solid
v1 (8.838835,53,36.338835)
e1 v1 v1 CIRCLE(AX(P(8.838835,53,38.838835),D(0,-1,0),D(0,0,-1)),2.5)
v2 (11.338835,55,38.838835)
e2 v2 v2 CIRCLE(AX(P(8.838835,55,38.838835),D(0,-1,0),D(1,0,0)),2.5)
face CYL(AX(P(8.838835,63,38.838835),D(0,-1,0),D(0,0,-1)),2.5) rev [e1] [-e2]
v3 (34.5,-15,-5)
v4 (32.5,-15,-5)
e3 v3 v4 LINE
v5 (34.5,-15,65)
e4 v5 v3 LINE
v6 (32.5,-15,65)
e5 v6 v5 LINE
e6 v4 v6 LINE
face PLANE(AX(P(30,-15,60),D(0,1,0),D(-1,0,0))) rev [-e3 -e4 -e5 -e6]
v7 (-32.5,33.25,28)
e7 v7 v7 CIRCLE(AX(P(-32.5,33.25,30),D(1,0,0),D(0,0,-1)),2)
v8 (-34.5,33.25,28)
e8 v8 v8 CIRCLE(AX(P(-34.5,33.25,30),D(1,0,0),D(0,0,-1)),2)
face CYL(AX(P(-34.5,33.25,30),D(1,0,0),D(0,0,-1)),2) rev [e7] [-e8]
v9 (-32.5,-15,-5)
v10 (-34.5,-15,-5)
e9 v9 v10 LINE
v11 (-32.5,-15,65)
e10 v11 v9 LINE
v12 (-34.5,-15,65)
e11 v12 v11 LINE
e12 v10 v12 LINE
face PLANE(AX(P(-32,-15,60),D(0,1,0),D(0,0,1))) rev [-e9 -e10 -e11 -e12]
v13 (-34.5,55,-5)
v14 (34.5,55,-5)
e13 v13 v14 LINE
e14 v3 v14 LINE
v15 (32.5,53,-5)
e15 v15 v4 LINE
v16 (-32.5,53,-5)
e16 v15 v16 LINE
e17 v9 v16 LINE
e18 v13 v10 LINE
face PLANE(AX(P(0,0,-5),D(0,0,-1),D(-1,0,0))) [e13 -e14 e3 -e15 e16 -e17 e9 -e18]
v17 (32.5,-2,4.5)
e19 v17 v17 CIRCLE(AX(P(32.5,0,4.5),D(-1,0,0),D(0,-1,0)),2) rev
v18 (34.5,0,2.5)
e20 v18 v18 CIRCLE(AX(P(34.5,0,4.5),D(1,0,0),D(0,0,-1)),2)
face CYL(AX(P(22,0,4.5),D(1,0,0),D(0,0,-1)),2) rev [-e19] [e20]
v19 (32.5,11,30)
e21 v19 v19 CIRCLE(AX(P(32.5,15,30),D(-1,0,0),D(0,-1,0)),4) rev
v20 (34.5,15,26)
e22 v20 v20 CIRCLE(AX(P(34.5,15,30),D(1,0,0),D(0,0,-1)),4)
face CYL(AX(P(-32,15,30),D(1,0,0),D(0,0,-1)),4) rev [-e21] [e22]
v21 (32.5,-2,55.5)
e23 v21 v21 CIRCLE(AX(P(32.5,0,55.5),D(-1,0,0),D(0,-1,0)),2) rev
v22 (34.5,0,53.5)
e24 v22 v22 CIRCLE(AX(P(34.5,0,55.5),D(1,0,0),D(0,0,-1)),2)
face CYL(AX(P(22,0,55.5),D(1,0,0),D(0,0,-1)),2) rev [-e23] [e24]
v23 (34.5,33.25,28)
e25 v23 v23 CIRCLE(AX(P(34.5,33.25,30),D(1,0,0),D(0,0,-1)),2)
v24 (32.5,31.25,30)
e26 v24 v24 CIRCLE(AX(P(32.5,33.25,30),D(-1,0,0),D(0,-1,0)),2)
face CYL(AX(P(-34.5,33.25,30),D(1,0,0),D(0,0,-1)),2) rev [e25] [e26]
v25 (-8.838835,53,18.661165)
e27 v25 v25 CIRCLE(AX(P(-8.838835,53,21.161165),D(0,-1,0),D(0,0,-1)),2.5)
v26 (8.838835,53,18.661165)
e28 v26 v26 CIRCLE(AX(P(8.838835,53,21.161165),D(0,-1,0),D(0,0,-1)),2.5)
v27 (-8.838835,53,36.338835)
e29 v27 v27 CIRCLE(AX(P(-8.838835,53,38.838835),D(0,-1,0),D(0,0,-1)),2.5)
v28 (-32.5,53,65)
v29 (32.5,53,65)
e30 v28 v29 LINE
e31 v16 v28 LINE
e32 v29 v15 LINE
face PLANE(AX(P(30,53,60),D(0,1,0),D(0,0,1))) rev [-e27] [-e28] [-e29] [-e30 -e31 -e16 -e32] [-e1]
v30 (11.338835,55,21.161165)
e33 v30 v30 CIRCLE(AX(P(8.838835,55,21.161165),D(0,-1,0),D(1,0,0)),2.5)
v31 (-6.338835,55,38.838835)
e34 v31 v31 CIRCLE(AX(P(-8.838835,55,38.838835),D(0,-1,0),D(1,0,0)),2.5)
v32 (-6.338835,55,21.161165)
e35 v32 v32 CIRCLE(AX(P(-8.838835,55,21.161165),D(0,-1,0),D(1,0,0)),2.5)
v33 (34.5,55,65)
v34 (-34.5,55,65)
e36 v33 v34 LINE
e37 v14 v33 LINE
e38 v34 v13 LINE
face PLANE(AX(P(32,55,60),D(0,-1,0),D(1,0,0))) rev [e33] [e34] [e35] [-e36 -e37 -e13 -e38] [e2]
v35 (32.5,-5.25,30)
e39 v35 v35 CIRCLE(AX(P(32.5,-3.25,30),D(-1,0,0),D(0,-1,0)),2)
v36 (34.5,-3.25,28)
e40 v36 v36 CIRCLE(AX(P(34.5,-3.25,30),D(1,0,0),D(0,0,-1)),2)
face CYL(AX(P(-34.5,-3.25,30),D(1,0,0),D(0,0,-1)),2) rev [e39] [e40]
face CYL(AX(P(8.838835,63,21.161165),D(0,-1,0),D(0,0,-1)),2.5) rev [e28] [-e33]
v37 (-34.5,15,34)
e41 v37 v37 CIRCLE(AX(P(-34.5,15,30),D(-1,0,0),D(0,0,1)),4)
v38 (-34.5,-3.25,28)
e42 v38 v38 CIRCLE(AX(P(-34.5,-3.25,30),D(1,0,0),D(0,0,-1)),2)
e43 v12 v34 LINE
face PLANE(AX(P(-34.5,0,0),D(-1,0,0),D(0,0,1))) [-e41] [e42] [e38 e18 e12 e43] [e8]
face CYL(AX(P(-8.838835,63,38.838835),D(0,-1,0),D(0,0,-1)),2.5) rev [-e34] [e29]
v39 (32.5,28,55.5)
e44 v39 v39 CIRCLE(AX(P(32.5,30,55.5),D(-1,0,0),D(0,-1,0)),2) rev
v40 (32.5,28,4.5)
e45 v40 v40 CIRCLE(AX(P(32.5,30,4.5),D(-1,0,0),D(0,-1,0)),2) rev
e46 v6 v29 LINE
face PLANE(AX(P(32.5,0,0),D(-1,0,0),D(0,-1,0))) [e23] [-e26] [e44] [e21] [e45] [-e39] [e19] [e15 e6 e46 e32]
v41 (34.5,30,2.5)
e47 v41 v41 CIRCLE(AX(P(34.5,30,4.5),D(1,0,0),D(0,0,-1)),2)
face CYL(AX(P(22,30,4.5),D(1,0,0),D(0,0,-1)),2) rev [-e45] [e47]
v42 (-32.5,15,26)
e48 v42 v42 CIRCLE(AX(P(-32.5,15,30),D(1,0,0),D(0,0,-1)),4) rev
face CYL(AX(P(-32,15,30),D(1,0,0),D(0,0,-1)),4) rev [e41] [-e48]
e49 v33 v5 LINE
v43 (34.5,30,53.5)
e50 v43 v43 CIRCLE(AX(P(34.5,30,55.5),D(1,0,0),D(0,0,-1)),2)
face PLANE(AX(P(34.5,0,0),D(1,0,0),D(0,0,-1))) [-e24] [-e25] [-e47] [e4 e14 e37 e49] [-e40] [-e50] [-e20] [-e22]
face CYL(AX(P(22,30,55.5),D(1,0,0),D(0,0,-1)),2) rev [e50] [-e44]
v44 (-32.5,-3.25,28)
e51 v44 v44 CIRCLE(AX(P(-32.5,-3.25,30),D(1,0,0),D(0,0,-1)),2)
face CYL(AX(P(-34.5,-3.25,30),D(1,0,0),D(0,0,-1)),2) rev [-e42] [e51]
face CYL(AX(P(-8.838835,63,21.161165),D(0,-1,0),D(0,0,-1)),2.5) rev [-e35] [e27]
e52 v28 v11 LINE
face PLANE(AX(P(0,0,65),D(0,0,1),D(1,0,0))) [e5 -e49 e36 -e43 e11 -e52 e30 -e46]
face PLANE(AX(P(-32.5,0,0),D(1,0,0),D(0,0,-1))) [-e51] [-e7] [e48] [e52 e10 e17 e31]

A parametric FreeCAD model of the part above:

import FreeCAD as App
import Part
import Sketcher

V = App.Vector
Q = App.Units.Quantity


def add_polygon(sketch, points):
    """Adds a closed chain of lines whose ends are joined by coincident constraints."""
    first, n = sketch.GeometryCount, len(points)
    for a, b in zip(points, points[1:] + points[:1]):
        sketch.addGeometry(Part.LineSegment(App.Vector(*a, 0), App.Vector(*b, 0)), False)
    for i in range(n):
        sketch.addConstraint(Sketcher.Constraint("Coincident", first + i, 2, first + (i + 1) % n, 1))

doc = App.newDocument("Part")
body = doc.addObject("PartDesign::Body", "Body")

# Sketch on XY plane
sketch1 = doc.addObject("Sketcher::SketchObject", "Sketch")
body.addObject(sketch1)
sketch1.AttachmentSupport = (doc.XY_Plane, [""])
sketch1.MapMode = "FlatFace"
add_polygon(sketch1, [(32, -15), (32, 55), (-32, 55), (-32, -15), (-30, -15), (-30, 53), (30, 53), (30, -15)])  # lines 0-7
sketch1.addConstraint([
    Sketcher.Constraint("Vertical", 0),
    Sketcher.Constraint("Horizontal", 1),
    Sketcher.Constraint("Vertical", 2),
    Sketcher.Constraint("Horizontal", 3),
    Sketcher.Constraint("Vertical", 4),
    Sketcher.Constraint("Horizontal", 5),
    Sketcher.Constraint("Vertical", 6),
    Sketcher.Constraint("Horizontal", 7),
    Sketcher.Constraint("Symmetric", 3, 2, 6, 2, -2),
    Sketcher.Constraint("Equal", 3, 7),
    Sketcher.Constraint("DistanceX", 1, 2, 1, 1, Q("64 mm")),
    Sketcher.Constraint("DistanceX", 3, 1, 3, 2, Q("2 mm")),
    Sketcher.Constraint("DistanceY", 0, 1, 0, 2, Q("70 mm")),
    Sketcher.Constraint("DistanceY", 4, 1, 4, 2, Q("68 mm")),
    Sketcher.Constraint("DistanceY", -1, 1, 0, 2, Q("55 mm")),
])
pad1 = doc.addObject("PartDesign::Pad", "Pad")
body.addObject(pad1)
pad1.Profile = sketch1
pad1.Length = 60

# Sketch on YZ plane
sketch2 = doc.addObject("Sketcher::SketchObject", "Sketch001")
body.addObject(sketch2)
sketch2.AttachmentSupport = (doc.YZ_Plane, [""])
sketch2.MapMode = "FlatFace"
sketch2.AttachmentOffset = App.Placement(V(0, 0, 32), App.Rotation())
sketch2.addGeometry(Part.Circle(V(15, 30, 0), V(0, 0, 1), 4), False)
sketch2.addConstraint([
    Sketcher.Constraint("Diameter", 0, Q("8 mm")),
    Sketcher.Constraint("DistanceX", -1, 1, 0, 3, Q("15 mm")),
    Sketcher.Constraint("DistanceY", -1, 1, 0, 3, Q("30 mm")),
])
pocket1 = doc.addObject("PartDesign::Pocket", "Pocket")
body.addObject(pocket1)
pocket1.Profile = sketch2
pocket1.Type = "ThroughAll"

# Sketch on XZ plane
sketch3 = doc.addObject("Sketcher::SketchObject", "Sketch002")
body.addObject(sketch3)
sketch3.AttachmentSupport = (doc.XZ_Plane, [""])
sketch3.MapMode = "FlatFace"
sketch3.AttachmentOffset = App.Placement(V(0, 0, -53), App.Rotation())
sketch3.addGeometry([
    Part.Circle(V(-8.8, 38.8, 0), V(0, 0, 1), 2.5),
    Part.Circle(V(-8.8, 21.2, 0), V(0, 0, 1), 2.5),
    Part.Circle(V(8.8, 21.2, 0), V(0, 0, 1), 2.5),
    Part.Circle(V(8.8, 38.8, 0), V(0, 0, 1), 2.5),
], False)
sketch3.addConstraint([
    Sketcher.Constraint("Equal", 0, 1),
    Sketcher.Constraint("Equal", 1, 2),
    Sketcher.Constraint("Equal", 2, 3),
    Sketcher.Constraint("Symmetric", 1, 3, 2, 3, -2),
    Sketcher.Constraint("Symmetric", 0, 3, 3, 3, -2),
    Sketcher.Constraint("Vertical", 0, 3, 1, 3),
    Sketcher.Constraint("Diameter", 0, Q("5 mm")),
    Sketcher.Constraint("DistanceY", 1, 3, 0, 3, Q("17.67767 mm")),
    Sketcher.Constraint("DistanceX", 1, 3, 2, 3, Q("17.67767 mm")),
    Sketcher.Constraint("DistanceY", -1, 1, 0, 3, Q("38.838835 mm")),
])
pocket2 = doc.addObject("PartDesign::Pocket", "Pocket001")
body.addObject(pocket2)
pocket2.Profile = sketch3
pocket2.Length = 10

# Sketch on XY plane
sketch4 = doc.addObject("Sketcher::SketchObject", "Sketch003")
body.addObject(sketch4)
sketch4.AttachmentSupport = (doc.XY_Plane, [""])
sketch4.MapMode = "FlatFace"
sketch4.AttachmentOffset = App.Placement(V(0, 0, 60), App.Rotation())
add_polygon(sketch4, [(-32, 55), (-32, -15), (-30, -15), (-30, 53), (30, 53), (30, -15), (32, -15), (32, 55)])  # lines 0-7
sketch4.addConstraint([
    Sketcher.Constraint("Vertical", 0),
    Sketcher.Constraint("Horizontal", 1),
    Sketcher.Constraint("Vertical", 2),
    Sketcher.Constraint("Horizontal", 3),
    Sketcher.Constraint("Vertical", 4),
    Sketcher.Constraint("Horizontal", 5),
    Sketcher.Constraint("Vertical", 6),
    Sketcher.Constraint("Horizontal", 7),
    Sketcher.Constraint("Symmetric", 1, 2, 4, 2, -2),
    Sketcher.Constraint("Equal", 1, 5),
    Sketcher.Constraint("DistanceX", 1, 1, 1, 2, Q("2 mm")),
    Sketcher.Constraint("DistanceX", 3, 1, 3, 2, Q("60 mm")),
    Sketcher.Constraint("DistanceY", 0, 2, 0, 1, Q("70 mm")),
    Sketcher.Constraint("DistanceY", 2, 1, 2, 2, Q("68 mm")),
    Sketcher.Constraint("DistanceY", 0, 2, -1, 1, Q("15 mm")),
])
pad2 = doc.addObject("PartDesign::Pad", "Pad001")
body.addObject(pad2)
pad2.Profile = sketch4
pad2.Length = 5

# Sketch on XY plane
sketch5 = doc.addObject("Sketcher::SketchObject", "Sketch004")
body.addObject(sketch5)
sketch5.AttachmentSupport = (doc.XY_Plane, [""])
sketch5.MapMode = "FlatFace"
add_polygon(sketch5, [(-32, -15), (-32, 55), (32, 55), (32, -15), (30, -15), (30, 53), (-30, 53), (-30, -15)])  # lines 0-7
sketch5.addConstraint([
    Sketcher.Constraint("Vertical", 0),
    Sketcher.Constraint("Horizontal", 1),
    Sketcher.Constraint("Vertical", 2),
    Sketcher.Constraint("Horizontal", 3),
    Sketcher.Constraint("Vertical", 4),
    Sketcher.Constraint("Horizontal", 5),
    Sketcher.Constraint("Vertical", 6),
    Sketcher.Constraint("Horizontal", 7),
    Sketcher.Constraint("Symmetric", 3, 2, 6, 2, -2),
    Sketcher.Constraint("Equal", 3, 7),
    Sketcher.Constraint("DistanceX", 1, 1, 1, 2, Q("64 mm")),
    Sketcher.Constraint("DistanceX", 3, 2, 3, 1, Q("2 mm")),
    Sketcher.Constraint("DistanceY", 0, 1, 0, 2, Q("70 mm")),
    Sketcher.Constraint("DistanceY", 4, 1, 4, 2, Q("68 mm")),
    Sketcher.Constraint("DistanceY", -1, 1, 0, 2, Q("55 mm")),
])
pad3 = doc.addObject("PartDesign::Pad", "Pad002")
body.addObject(pad3)
pad3.Profile = sketch5
pad3.Length = 5
pad3.Reversed = True

# Sketch on YZ plane
sketch6 = doc.addObject("Sketcher::SketchObject", "Sketch005")
body.addObject(sketch6)
sketch6.AttachmentSupport = (doc.YZ_Plane, [""])
sketch6.MapMode = "FlatFace"
sketch6.AttachmentOffset = App.Placement(V(0, 0, 32), App.Rotation())
sketch6.addGeometry([
    Part.Circle(V(0, 4.5, 0), V(0, 0, 1), 2),
    Part.Circle(V(30, 4.5, 0), V(0, 0, 1), 2),
    Part.Circle(V(0, 55.5, 0), V(0, 0, 1), 2),
    Part.Circle(V(30, 55.5, 0), V(0, 0, 1), 2),
], False)
sketch6.addConstraint([
    Sketcher.Constraint("Equal", 0, 1),
    Sketcher.Constraint("Equal", 1, 2),
    Sketcher.Constraint("Equal", 2, 3),
    Sketcher.Constraint("PointOnObject", 0, 3, -2),
    Sketcher.Constraint("PointOnObject", 2, 3, -2),
    Sketcher.Constraint("Horizontal", 0, 3, 1, 3),
    Sketcher.Constraint("Horizontal", 2, 3, 3, 3),
    Sketcher.Constraint("Vertical", 1, 3, 3, 3),
    Sketcher.Constraint("Diameter", 0, Q("4 mm")),
    Sketcher.Constraint("DistanceX", -1, 1, 1, 3, Q("30 mm")),
    Sketcher.Constraint("DistanceY", 0, 3, 2, 3, Q("51 mm")),
    Sketcher.Constraint("DistanceY", -1, 1, 0, 3, Q("4.5 mm")),
])
pocket3 = doc.addObject("PartDesign::Pocket", "Pocket002")
body.addObject(pocket3)
pocket3.Profile = sketch6
pocket3.Length = 10

# Sketch on YZ plane
sketch7 = doc.addObject("Sketcher::SketchObject", "Sketch006")
body.addObject(sketch7)
sketch7.AttachmentSupport = (doc.YZ_Plane, [""])
sketch7.MapMode = "FlatFace"
sketch7.AttachmentOffset = App.Placement(V(0, 0, 32), App.Rotation())
add_polygon(sketch7, [(55, 65), (-15, 65), (-15, -5), (55, -5)])  # lines 0-3
sketch7.addGeometry(Part.Circle(V(0, 55.5, 0), V(0, 0, 1), 2), False)  # 4
sketch7.addGeometry(Part.Circle(V(0, 4.5, 0), V(0, 0, 1), 2), False)  # 5
sketch7.addGeometry(Part.Circle(V(30, 55.5, 0), V(0, 0, 1), 2), False)  # 6
sketch7.addGeometry(Part.Circle(V(15, 30, 0), V(0, 0, 1), 4), False)  # 7
sketch7.addGeometry(Part.Circle(V(30, 4.5, 0), V(0, 0, 1), 2), False)  # 8
sketch7.addConstraint([
    Sketcher.Constraint("Horizontal", 0),
    Sketcher.Constraint("Vertical", 1),
    Sketcher.Constraint("Horizontal", 2),
    Sketcher.Constraint("Vertical", 3),
    Sketcher.Constraint("Equal", 4, 5),
    Sketcher.Constraint("Equal", 5, 6),
    Sketcher.Constraint("Equal", 6, 8),
    Sketcher.Constraint("PointOnObject", 4, 3, -2),
    Sketcher.Constraint("PointOnObject", 5, 3, -2),
    Sketcher.Constraint("Horizontal", 4, 3, 6, 3),
    Sketcher.Constraint("Horizontal", 5, 3, 8, 3),
    Sketcher.Constraint("Vertical", 6, 3, 8, 3),
    Sketcher.Constraint("Equal", 2, 1),
    Sketcher.Constraint("Diameter", 4, Q("4 mm")),
    Sketcher.Constraint("Diameter", 7, Q("8 mm")),
    Sketcher.Constraint("DistanceX", 0, 2, 0, 1, Q("70 mm")),
    Sketcher.Constraint("DistanceX", -1, 1, 6, 3, Q("30 mm")),
    Sketcher.Constraint("DistanceX", -1, 1, 7, 3, Q("15 mm")),
    Sketcher.Constraint("DistanceY", -1, 1, 7, 3, Q("30 mm")),
    Sketcher.Constraint("DistanceX", 0, 2, -1, 1, Q("15 mm")),
    Sketcher.Constraint("DistanceY", -1, 1, 0, 2, Q("65 mm")),
    Sketcher.Constraint("DistanceY", 5, 3, 4, 3, Q("51 mm")),
    Sketcher.Constraint("DistanceY", -1, 1, 4, 3, Q("55.5 mm")),
])
pad4 = doc.addObject("PartDesign::Pad", "Pad003")
body.addObject(pad4)
pad4.Profile = sketch7
pad4.Length = 2.5

# Sketch on YZ plane
sketch8 = doc.addObject("Sketcher::SketchObject", "Sketch007")
body.addObject(sketch8)
sketch8.AttachmentSupport = (doc.YZ_Plane, [""])
sketch8.MapMode = "FlatFace"
sketch8.AttachmentOffset = App.Placement(V(0, 0, -32), App.Rotation())
add_polygon(sketch8, [(55, -5), (-15, -5), (-15, 65), (55, 65)])  # lines 0-3
sketch8.addGeometry(Part.Circle(V(15, 30, 0), V(0, 0, 1), 4), False)  # 4
sketch8.addConstraint([
    Sketcher.Constraint("Horizontal", 0),
    Sketcher.Constraint("Vertical", 1),
    Sketcher.Constraint("Horizontal", 2),
    Sketcher.Constraint("Vertical", 3),
    Sketcher.Constraint("Equal", 2, 1),
    Sketcher.Constraint("Diameter", 4, Q("8 mm")),
    Sketcher.Constraint("DistanceX", 0, 2, 0, 1, Q("70 mm")),
    Sketcher.Constraint("DistanceX", -1, 1, 4, 3, Q("15 mm")),
    Sketcher.Constraint("DistanceY", -1, 1, 4, 3, Q("30 mm")),
    Sketcher.Constraint("DistanceX", 0, 2, -1, 1, Q("15 mm")),
    Sketcher.Constraint("DistanceY", 0, 2, -1, 1, Q("5 mm")),
])
pad5 = doc.addObject("PartDesign::Pad", "Pad004")
body.addObject(pad5)
pad5.Profile = sketch8
pad5.Length = 2.5
pad5.Reversed = True

# Sketch on YZ plane
sketch9 = doc.addObject("Sketcher::SketchObject", "Sketch008")
body.addObject(sketch9)
sketch9.AttachmentSupport = (doc.YZ_Plane, [""])
sketch9.MapMode = "FlatFace"
sketch9.AttachmentOffset = App.Placement(V(0, 0, 30), App.Rotation())
add_polygon(sketch9, [(53, -5), (-15, -5), (-15, 65), (53, 65)])  # lines 0-3
sketch9.addConstraint([
    Sketcher.Constraint("Horizontal", 0),
    Sketcher.Constraint("Vertical", 1),
    Sketcher.Constraint("Horizontal", 2),
    Sketcher.Constraint("Vertical", 3),
    Sketcher.Constraint("DistanceX", 0, 2, 0, 1, Q("68 mm")),
    Sketcher.Constraint("DistanceY", 1, 1, 1, 2, Q("70 mm")),
    Sketcher.Constraint("DistanceX", 0, 2, -1, 1, Q("15 mm")),
    Sketcher.Constraint("DistanceY", 0, 2, -1, 1, Q("5 mm")),
])
pocket4 = doc.addObject("PartDesign::Pocket", "Pocket003")
body.addObject(pocket4)
pocket4.Profile = sketch9
pocket4.Length = 2.5
pocket4.Reversed = True

# Sketch on YZ plane
sketch10 = doc.addObject("Sketcher::SketchObject", "Sketch009")
body.addObject(sketch10)
sketch10.AttachmentSupport = (doc.YZ_Plane, [""])
sketch10.MapMode = "FlatFace"
sketch10.AttachmentOffset = App.Placement(V(0, 0, -30), App.Rotation())
add_polygon(sketch10, [(53, 65), (-15, 65), (-15, -5), (53, -5)])  # lines 0-3
sketch10.addConstraint([
    Sketcher.Constraint("Horizontal", 0),
    Sketcher.Constraint("Vertical", 1),
    Sketcher.Constraint("Horizontal", 2),
    Sketcher.Constraint("Vertical", 3),
    Sketcher.Constraint("DistanceX", 0, 2, 0, 1, Q("68 mm")),
    Sketcher.Constraint("DistanceY", 1, 2, 1, 1, Q("70 mm")),
    Sketcher.Constraint("DistanceX", 0, 2, -1, 1, Q("15 mm")),
    Sketcher.Constraint("DistanceY", -1, 1, 0, 2, Q("65 mm")),
])
pocket5 = doc.addObject("PartDesign::Pocket", "Pocket004")
body.addObject(pocket5)
pocket5.Profile = sketch10
pocket5.Length = 2.5

# Sketch on YZ plane
sketch11 = doc.addObject("Sketcher::SketchObject", "Sketch010")
body.addObject(sketch11)
sketch11.AttachmentSupport = (doc.YZ_Plane, [""])
sketch11.MapMode = "FlatFace"
sketch11.AttachmentOffset = App.Placement(V(0, 0, 34.5), App.Rotation())
sketch11.addGeometry([
    Part.Circle(V(-3.2, 30, 0), V(0, 0, 1), 2),
    Part.Circle(V(33.2, 30, 0), V(0, 0, 1), 2),
], False)
sketch11.addConstraint([
    Sketcher.Constraint("Equal", 0, 1),
    Sketcher.Constraint("Horizontal", 0, 3, 1, 3),
    Sketcher.Constraint("Diameter", 0, Q("4 mm")),
    Sketcher.Constraint("DistanceY", -1, 1, 0, 3, Q("30 mm")),
    Sketcher.Constraint("DistanceX", 0, 3, 1, 3, Q("36.5 mm")),
    Sketcher.Constraint("DistanceX", 0, 3, -1, 1, Q("3.25 mm")),
])
pocket6 = doc.addObject("PartDesign::Pocket", "Pocket005")
body.addObject(pocket6)
pocket6.Profile = sketch11
pocket6.Type = "ThroughAll"

doc.recompute()
